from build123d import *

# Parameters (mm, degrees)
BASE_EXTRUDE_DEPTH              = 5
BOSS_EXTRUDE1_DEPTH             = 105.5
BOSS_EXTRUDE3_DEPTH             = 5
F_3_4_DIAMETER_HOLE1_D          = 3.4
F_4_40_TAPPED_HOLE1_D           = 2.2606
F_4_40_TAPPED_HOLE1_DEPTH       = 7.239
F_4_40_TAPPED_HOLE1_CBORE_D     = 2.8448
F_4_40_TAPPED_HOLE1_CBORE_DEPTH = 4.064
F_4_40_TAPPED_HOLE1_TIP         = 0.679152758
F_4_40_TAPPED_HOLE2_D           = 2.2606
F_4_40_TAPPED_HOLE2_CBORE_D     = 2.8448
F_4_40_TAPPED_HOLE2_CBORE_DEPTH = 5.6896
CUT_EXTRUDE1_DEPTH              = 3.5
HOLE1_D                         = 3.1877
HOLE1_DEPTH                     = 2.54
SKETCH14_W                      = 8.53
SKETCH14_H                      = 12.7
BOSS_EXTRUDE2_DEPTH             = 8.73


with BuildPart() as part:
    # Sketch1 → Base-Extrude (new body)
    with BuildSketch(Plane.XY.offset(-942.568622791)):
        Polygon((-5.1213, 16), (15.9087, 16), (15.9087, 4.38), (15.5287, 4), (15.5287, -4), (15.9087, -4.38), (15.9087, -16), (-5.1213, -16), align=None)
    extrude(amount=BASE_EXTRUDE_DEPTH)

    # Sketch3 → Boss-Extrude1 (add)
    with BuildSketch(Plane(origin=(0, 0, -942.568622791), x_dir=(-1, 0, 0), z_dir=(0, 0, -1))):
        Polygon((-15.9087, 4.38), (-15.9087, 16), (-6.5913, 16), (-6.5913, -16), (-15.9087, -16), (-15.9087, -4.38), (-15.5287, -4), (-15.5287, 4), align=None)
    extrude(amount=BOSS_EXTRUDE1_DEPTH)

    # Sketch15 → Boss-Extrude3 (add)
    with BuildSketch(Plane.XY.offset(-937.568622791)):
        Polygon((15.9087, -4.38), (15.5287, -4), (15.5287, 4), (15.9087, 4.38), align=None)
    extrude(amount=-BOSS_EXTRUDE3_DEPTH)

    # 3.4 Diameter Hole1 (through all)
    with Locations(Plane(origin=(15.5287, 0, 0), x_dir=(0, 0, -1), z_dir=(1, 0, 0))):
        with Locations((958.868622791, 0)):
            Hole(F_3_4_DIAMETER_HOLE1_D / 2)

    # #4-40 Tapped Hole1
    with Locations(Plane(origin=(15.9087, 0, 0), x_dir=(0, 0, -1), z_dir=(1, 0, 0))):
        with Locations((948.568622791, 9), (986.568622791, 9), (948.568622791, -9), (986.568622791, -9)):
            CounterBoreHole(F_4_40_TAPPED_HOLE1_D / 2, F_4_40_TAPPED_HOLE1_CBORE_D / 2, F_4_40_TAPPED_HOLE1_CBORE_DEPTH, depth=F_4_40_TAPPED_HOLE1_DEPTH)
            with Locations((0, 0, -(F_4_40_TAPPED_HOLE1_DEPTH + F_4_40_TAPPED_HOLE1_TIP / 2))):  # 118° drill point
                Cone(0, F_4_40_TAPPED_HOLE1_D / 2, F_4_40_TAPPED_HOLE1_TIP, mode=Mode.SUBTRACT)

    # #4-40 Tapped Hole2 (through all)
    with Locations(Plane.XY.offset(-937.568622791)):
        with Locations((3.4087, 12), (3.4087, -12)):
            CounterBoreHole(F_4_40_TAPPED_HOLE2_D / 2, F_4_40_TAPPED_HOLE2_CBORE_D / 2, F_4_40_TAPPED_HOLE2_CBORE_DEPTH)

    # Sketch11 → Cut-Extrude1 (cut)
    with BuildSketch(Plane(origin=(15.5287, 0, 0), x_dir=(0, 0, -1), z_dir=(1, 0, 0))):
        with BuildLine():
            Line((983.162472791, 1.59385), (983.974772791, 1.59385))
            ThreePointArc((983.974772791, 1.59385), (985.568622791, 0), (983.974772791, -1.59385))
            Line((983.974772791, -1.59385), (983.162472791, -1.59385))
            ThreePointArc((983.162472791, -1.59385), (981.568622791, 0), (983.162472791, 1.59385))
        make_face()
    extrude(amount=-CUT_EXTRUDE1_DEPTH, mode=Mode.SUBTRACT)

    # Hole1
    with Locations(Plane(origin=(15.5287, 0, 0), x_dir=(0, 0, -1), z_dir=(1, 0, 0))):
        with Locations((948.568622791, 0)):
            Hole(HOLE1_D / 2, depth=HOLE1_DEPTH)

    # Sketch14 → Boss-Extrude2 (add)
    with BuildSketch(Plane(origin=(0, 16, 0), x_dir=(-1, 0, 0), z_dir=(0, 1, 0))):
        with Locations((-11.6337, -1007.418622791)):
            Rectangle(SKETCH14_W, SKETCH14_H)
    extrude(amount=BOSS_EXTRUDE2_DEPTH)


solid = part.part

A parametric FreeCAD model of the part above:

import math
import FreeCAD as App
import Part
import Sketcher
Q = App.Units.Quantity


def add_polygon(sketch, points):
    """Adds a closed chain of lines whose ends are joined by coincident constraints."""
    first, n = sketch.GeometryCount, len(points)
    for a, b in zip(points, points[1:] + points[:1]):
        sketch.addGeometry(Part.LineSegment(App.Vector(*a, 0), App.Vector(*b, 0)), False)
    for i in range(n):
        sketch.addConstraint(Sketcher.Constraint("Coincident", first + i, 2, first + (i + 1) % n, 1))

doc = App.newDocument("Part")
body = doc.addObject("PartDesign::Body", "Body")

# Sketch on XY plane
sketch1 = body.newObject("Sketcher::SketchObject", "Sketch")
sketch1.AttachmentSupport = (doc.getObject("XY_Plane"), [""])
sketch1.MapMode = "FlatFace"
sketch1.AttachmentOffset = App.Placement(App.Vector(0, 0, -942.568623), App.Rotation())
add_polygon(sketch1, [(15.9, 16), (-5.1, 16), (-5.1, -16), (15.9, -16), (15.9, -4.4), (15.5, -4), (15.5, 4), (15.9, 4.4)])  # lines 0-7
sketch1.addConstraint([
    Sketcher.Constraint("Horizontal", 0),
    Sketcher.Constraint("Vertical", 1),
    Sketcher.Constraint("Horizontal", 2),
    Sketcher.Constraint("Vertical", 3),
    Sketcher.Constraint("Vertical", 5),
    Sketcher.Constraint("Vertical", 7),
    Sketcher.Constraint("Symmetric", 3, 2, 6, 2, -1),
    Sketcher.Constraint("Perpendicular", 4, 6),
    Sketcher.Constraint("Equal", 3, 7),
    Sketcher.Constraint("Equal", 4, 6),
    Sketcher.Constraint("DistanceY", 1, 2, 1, 1, Q("32 mm")),
    Sketcher.Constraint("DistanceY", 5, 1, 5, 2, Q("8 mm")),
    Sketcher.Constraint("DistanceX", 0, 2, 0, 1, Q("21.03 mm")),
    Sketcher.Constraint("DistanceY", 3, 1, 3, 2, Q("11.62 mm")),
    Sketcher.Constraint("DistanceX", 0, 2, -1, 1, Q("5.1213 mm")),
])
pad1 = body.newObject("PartDesign::Pad", "Pad")
pad1.Profile = sketch1
pad1.Length = 5

# Sketch on XY plane
sketch2 = body.newObject("Sketcher::SketchObject", "Sketch001")
sketch2.AttachmentSupport = (doc.getObject("XY_Plane"), [""])
sketch2.MapMode = "FlatFace"
sketch2.AttachmentOffset = App.Placement(App.Vector(0, 0, -942.568623), App.Rotation())
add_polygon(sketch2, [(15.9, 16), (15.9, 4.4), (15.5, 4), (15.5, -4), (15.9, -4.4), (15.9, -16), (6.6, -16), (6.6, 16)])  # lines 0-7
sketch2.addConstraint([
    Sketcher.Constraint("Vertical", 0),
    Sketcher.Constraint("Vertical", 2),
    Sketcher.Constraint("Vertical", 4),
    Sketcher.Constraint("Horizontal", 5),
    Sketcher.Constraint("Vertical", 6),
    Sketcher.Constraint("Horizontal", 7),
    Sketcher.Constraint("Symmetric", 0, 2, 3, 2, -1),
    Sketcher.Constraint("Perpendicular", 1, 3),
    Sketcher.Constraint("Equal", 0, 4),
    Sketcher.Constraint("Equal", 1, 3),
    Sketcher.Constraint("DistanceY", 2, 2, 2, 1, Q("8 mm")),
    Sketcher.Constraint("DistanceY", 6, 1, 6, 2, Q("32 mm")),
    Sketcher.Constraint("DistanceY", 0, 2, 0, 1, Q("11.62 mm")),
    Sketcher.Constraint("DistanceX", 5, 2, 5, 1, Q("9.3174 mm")),
    Sketcher.Constraint("DistanceX", -1, 1, 0, 2, Q("15.9087 mm")),
])
pad2 = body.newObject("PartDesign::Pad", "Pad001")
pad2.Profile = sketch2
pad2.Length = 105.5
pad2.Reversed = True

# Sketch on XY plane
sketch3 = body.newObject("Sketcher::SketchObject", "Sketch002")
sketch3.AttachmentSupport = (doc.getObject("XY_Plane"), [""])
sketch3.MapMode = "FlatFace"
sketch3.AttachmentOffset = App.Placement(App.Vector(0, 0, -937.568623), App.Rotation())
add_polygon(sketch3, [(15.5, -4), (15.9, -4.4), (15.9, 4.4), (15.5, 4)])  # lines 0-3
sketch3.addConstraint([
    Sketcher.Constraint("Vertical", 1),
    Sketcher.Constraint("Vertical", 3),
    Sketcher.Constraint("Perpendicular", 0, 2),
    Sketcher.Constraint("Equal", 0, 2),
    Sketcher.Constraint("DistanceY", 3, 2, 3, 1, Q("8 mm")),
    Sketcher.Constraint("DistanceY", -1, 1, 2, 2, Q("4 mm")),
    Sketcher.Constraint("DistanceY", 1, 1, 1, 2, Q("8.76 mm")),
    Sketcher.Constraint("DistanceX", -1, 1, 0, 2, Q("15.9087 mm")),
])
pad3 = body.newObject("PartDesign::Pad", "Pad002")
pad3.Profile = sketch3
pad3.Length = 5
pad3.Reversed = True

# Sketch on YZ plane
sketch4 = body.newObject("Sketcher::SketchObject", "Sketch003")
sketch4.AttachmentSupport = (doc.getObject("YZ_Plane"), [""])
sketch4.MapMode = "FlatFace"
sketch4.AttachmentOffset = App.Placement(App.Vector(0, 0, 15.5287), App.Rotation())
sketch4.addGeometry(Part.Circle(App.Vector(0, -958.9, 0), App.Vector(0, 0, 1), 1.7), False)
sketch4.addConstraint([
    Sketcher.Constraint("PointOnObject", 0, 3, -2),
    Sketcher.Constraint("Diameter", 0, Q("3.4 mm")),
    Sketcher.Constraint("DistanceY", 0, 3, -1, 1, Q("958.868623 mm")),
])
doc.recompute()
hole = body.newObject("PartDesign::Hole", "Hole")
hole.Profile = sketch4
hole.ThreadType = "None"
hole.Diameter = 3.4
hole.DepthType = "ThroughAll"

# Sketch on YZ plane
sketch5 = body.newObject("Sketcher::SketchObject", "Sketch004")
sketch5.AttachmentSupport = (doc.getObject("YZ_Plane"), [""])
sketch5.MapMode = "FlatFace"
sketch5.AttachmentOffset = App.Placement(App.Vector(0, 0, 15.9087), App.Rotation())
sketch5.addGeometry([
    Part.Circle(App.Vector(9, -948.6, 0), App.Vector(0, 0, 1), 1.1),
    Part.Circle(App.Vector(9, -986.6, 0), App.Vector(0, 0, 1), 1.1),
    Part.Circle(App.Vector(-9, -948.6, 0), App.Vector(0, 0, 1), 1.1),
    Part.Circle(App.Vector(-9, -986.6, 0), App.Vector(0, 0, 1), 1.1),
], False)
sketch5.addConstraint([
    Sketcher.Constraint("Equal", 0, 1),
    Sketcher.Constraint("Equal", 1, 2),
    Sketcher.Constraint("Equal", 2, 3),
    Sketcher.Constraint("Symmetric", 0, 3, 2, 3, -2),
    Sketcher.Constraint("Symmetric", 1, 3, 3, 3, -2),
    Sketcher.Constraint("Vertical", 0, 3, 1, 3),
    Sketcher.Constraint("DistanceX", -1, 1, 0, 3, Q("9 mm")),
    Sketcher.Constraint("DistanceY", 1, 3, 0, 3, Q("38 mm")),
    Sketcher.Constraint("Diameter", 0, Q("2.2606 mm")),
    Sketcher.Constraint("DistanceY", 0, 3, -1, 1, Q("948.568623 mm")),
])
doc.recompute()
hole2 = body.newObject("PartDesign::Hole", "Hole001")
hole2.Profile = sketch5
hole2.ThreadType = "None"
hole2.Diameter = 2.2606
hole2.DepthType = "Dimension"
hole2.Depth = 7.239
hole2.DrillPoint = "Angled"
hole2.DrillPointAngle = 118
hole2.HoleCutType = "Counterbore"
hole2.HoleCutDiameter = 2.8448
hole2.HoleCutDepth = 4.064

# Sketch on XY plane
sketch6 = body.newObject("Sketcher::SketchObject", "Sketch005")
sketch6.AttachmentSupport = (doc.getObject("XY_Plane"), [""])
sketch6.MapMode = "FlatFace"
sketch6.AttachmentOffset = App.Placement(App.Vector(0, 0, -937.568623), App.Rotation())
sketch6.addGeometry([
    Part.Circle(App.Vector(3.4, 12, 0), App.Vector(0, 0, 1), 1.1),
    Part.Circle(App.Vector(3.4, -12, 0), App.Vector(0, 0, 1), 1.1),
], False)
sketch6.addConstraint([
    Sketcher.Constraint("Equal", 0, 1),
    Sketcher.Constraint("Symmetric", 0, 3, 1, 3, -1),
    Sketcher.Constraint("DistanceY", -1, 1, 0, 3, Q("12 mm")),
    Sketcher.Constraint("Diameter", 0, Q("2.2606 mm")),
    Sketcher.Constraint("DistanceX", -1, 1, 0, 3, Q("3.4087 mm")),
])
doc.recompute()
hole3 = body.newObject("PartDesign::Hole", "Hole002")
hole3.Profile = sketch6
hole3.ThreadType = "None"
hole3.Diameter = 2.2606
hole3.DepthType = "ThroughAll"
hole3.HoleCutType = "Counterbore"
hole3.HoleCutDiameter = 2.8448
hole3.HoleCutDepth = 5.6896

# Sketch on YZ plane
sketch7 = body.newObject("Sketcher::SketchObject", "Sketch006")
sketch7.AttachmentSupport = (doc.getObject("YZ_Plane"), [""])
sketch7.MapMode = "FlatFace"
sketch7.AttachmentOffset = App.Placement(App.Vector(0, 0, 15.5287), App.Rotation())
sketch7.addGeometry([
    Part.LineSegment(App.Vector(1.6, -984, 0), App.Vector(1.6, -983.2, 0)),
    Part.ArcOfCircle(Part.Circle(App.Vector(0, -983.2, 0), App.Vector(0, 0, 1), 1.6), math.radians(0), math.radians(180)),
    Part.LineSegment(App.Vector(-1.6, -983.2, 0), App.Vector(-1.6, -984, 0)),
    Part.ArcOfCircle(Part.Circle(App.Vector(0, -984, 0), App.Vector(0, 0, 1), 1.6), math.radians(180), math.radians(360)),
], False)
sketch7.addConstraint([
    Sketcher.Constraint("Tangent", 0, 2, 1, 1),
    Sketcher.Constraint("Tangent", 1, 2, 2, 1),
    Sketcher.Constraint("Tangent", 2, 2, 3, 1),
    Sketcher.Constraint("Tangent", 3, 2, 0, 1),
    Sketcher.Constraint("Vertical", 0),
    Sketcher.Constraint("Vertical", 2),
    Sketcher.Constraint("PointOnObject", 1, 3, -2),
    Sketcher.Constraint("Radius", 1, Q("1.59385 mm")),
    Sketcher.Constraint("DistanceY", 0, 1, 0, 2, Q("0.8123 mm")),
    Sketcher.Constraint("DistanceY", 1, 3, -1, 1, Q("983.162473 mm")),
])
pocket1 = body.newObject("PartDesign::Pocket", "Pocket")
pocket1.Profile = sketch7
pocket1.Length = 3.5

# Sketch on YZ plane
sketch8 = body.newObject("Sketcher::SketchObject", "Sketch007")
sketch8.AttachmentSupport = (doc.getObject("YZ_Plane"), [""])
sketch8.MapMode = "FlatFace"
sketch8.AttachmentOffset = App.Placement(App.Vector(0, 0, 15.5287), App.Rotation())
sketch8.addGeometry(Part.Circle(App.Vector(0, -948.6, 0), App.Vector(0, 0, 1), 1.6), False)
sketch8.addConstraint([
    Sketcher.Constraint("PointOnObject", 0, 3, -2),
    Sketcher.Constraint("Diameter", 0, Q("3.1877 mm")),
    Sketcher.Constraint("DistanceY", 0, 3, -1, 1, Q("948.568623 mm")),
])
doc.recompute()
hole4 = body.newObject("PartDesign::Hole", "Hole003")
hole4.Profile = sketch8
hole4.ThreadType = "None"
hole4.Diameter = 3.1877
hole4.DepthType = "Dimension"
hole4.Depth = 2.54
hole4.DrillPoint = "Flat"

# Sketch on XZ plane
sketch9 = body.newObject("Sketcher::SketchObject", "Sketch008")
sketch9.AttachmentSupport = (doc.getObject("XZ_Plane"), [""])
sketch9.MapMode = "FlatFace"
sketch9.AttachmentOffset = App.Placement(App.Vector(0, 0, -16), App.Rotation())
add_polygon(sketch9, [(16, -1001), (16, -1014), (7, -1014), (7, -1001)])  # lines 0-3
sketch9.addConstraint([
    Sketcher.Constraint("Vertical", 0),
    Sketcher.Constraint("Horizontal", 1),
    Sketcher.Constraint("Vertical", 2),
    Sketcher.Constraint("Horizontal", 3),
    Sketcher.Constraint("DistanceY", 0, 2, 0, 1, Q("12.7 mm")),
    Sketcher.Constraint("DistanceX", 1, 2, 1, 1, Q("8.53 mm")),
    Sketcher.Constraint("DistanceX", -1, 1, 0, 2, Q("15.8987 mm")),
    Sketcher.Constraint("DistanceY", 0, 2, -1, 1, Q("1013.768623 mm")),
])
pad4 = body.newObject("PartDesign::Pad", "Pad003")
pad4.Profile = sketch9
pad4.Length = 8.73
pad4.Reversed = True

doc.recompute()
